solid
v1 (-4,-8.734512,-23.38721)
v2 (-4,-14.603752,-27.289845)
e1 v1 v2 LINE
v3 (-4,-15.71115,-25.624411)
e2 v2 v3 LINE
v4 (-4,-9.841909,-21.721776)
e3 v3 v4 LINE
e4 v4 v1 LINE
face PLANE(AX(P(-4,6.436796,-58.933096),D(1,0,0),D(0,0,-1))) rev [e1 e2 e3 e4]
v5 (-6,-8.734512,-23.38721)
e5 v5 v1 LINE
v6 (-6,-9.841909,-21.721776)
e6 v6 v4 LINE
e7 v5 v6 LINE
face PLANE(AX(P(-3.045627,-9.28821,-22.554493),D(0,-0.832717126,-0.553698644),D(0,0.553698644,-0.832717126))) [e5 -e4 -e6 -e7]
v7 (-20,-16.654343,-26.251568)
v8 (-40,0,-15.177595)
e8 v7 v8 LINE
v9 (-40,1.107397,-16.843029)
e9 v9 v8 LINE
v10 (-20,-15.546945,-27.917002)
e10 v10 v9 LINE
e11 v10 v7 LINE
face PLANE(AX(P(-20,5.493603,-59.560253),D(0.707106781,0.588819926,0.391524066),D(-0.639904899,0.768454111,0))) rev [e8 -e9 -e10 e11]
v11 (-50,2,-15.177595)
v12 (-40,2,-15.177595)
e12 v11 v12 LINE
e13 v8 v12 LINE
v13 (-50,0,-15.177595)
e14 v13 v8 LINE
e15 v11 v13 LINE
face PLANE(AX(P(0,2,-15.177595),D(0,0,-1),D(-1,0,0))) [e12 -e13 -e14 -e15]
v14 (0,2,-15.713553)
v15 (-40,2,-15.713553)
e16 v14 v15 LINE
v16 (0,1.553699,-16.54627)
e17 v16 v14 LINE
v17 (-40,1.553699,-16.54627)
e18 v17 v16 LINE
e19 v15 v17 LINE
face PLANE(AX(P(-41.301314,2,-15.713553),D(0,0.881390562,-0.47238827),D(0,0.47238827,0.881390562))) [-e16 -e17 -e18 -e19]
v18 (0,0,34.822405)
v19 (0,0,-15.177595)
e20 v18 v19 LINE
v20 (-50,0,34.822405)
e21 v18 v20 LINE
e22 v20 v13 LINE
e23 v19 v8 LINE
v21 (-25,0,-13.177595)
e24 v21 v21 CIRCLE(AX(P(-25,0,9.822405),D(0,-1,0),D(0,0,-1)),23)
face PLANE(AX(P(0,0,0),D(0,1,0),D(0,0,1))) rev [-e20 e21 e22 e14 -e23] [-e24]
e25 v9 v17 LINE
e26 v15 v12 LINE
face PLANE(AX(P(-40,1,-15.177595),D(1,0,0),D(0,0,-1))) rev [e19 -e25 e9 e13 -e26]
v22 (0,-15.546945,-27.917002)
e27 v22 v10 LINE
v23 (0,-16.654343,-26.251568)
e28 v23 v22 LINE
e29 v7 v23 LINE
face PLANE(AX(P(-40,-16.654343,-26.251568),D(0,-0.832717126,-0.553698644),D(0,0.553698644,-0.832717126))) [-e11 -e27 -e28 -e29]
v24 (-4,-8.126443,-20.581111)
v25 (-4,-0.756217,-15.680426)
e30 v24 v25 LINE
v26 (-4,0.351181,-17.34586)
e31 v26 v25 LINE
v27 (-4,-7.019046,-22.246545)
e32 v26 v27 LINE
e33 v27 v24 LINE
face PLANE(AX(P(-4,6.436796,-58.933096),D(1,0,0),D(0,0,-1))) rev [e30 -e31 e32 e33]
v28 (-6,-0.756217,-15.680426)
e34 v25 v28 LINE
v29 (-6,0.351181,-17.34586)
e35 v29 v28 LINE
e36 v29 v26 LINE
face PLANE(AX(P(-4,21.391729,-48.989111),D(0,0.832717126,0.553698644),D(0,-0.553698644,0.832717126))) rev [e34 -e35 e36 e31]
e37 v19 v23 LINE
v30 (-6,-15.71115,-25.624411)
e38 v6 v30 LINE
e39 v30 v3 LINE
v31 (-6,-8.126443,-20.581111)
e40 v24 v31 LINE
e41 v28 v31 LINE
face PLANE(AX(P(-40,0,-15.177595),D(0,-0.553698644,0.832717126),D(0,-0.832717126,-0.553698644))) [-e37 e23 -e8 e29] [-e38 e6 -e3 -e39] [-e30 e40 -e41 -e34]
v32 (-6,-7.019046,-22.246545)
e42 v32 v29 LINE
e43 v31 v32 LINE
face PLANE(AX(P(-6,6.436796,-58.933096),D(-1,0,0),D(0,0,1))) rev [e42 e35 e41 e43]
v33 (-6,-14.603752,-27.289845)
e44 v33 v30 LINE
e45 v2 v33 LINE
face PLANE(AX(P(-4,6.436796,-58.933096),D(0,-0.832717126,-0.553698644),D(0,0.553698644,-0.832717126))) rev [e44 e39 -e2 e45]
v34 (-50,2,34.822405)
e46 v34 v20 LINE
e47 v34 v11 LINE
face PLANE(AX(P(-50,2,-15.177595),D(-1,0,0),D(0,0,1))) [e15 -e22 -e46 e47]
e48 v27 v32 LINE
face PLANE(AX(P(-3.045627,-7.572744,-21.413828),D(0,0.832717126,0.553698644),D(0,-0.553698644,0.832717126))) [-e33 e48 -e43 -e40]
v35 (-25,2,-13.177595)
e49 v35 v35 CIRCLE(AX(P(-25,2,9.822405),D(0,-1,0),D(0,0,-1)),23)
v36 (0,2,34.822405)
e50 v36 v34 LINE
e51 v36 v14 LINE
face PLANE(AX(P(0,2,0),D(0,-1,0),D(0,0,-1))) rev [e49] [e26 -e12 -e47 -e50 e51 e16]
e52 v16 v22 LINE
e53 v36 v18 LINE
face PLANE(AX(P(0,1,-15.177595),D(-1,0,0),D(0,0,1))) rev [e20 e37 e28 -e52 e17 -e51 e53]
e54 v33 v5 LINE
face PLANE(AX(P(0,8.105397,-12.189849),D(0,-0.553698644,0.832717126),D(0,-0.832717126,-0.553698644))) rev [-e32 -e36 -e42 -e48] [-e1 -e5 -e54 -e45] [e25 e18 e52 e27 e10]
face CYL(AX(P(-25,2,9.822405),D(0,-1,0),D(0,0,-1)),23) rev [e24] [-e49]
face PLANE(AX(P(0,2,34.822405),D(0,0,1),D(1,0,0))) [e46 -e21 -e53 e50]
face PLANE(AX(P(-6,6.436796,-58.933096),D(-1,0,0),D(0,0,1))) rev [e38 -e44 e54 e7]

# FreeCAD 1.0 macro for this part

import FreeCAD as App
import Part
import Sketcher
Q = App.Units.Quantity


def add_polygon(sketch, points):
    """Adds a closed chain of lines whose ends are joined by coincident constraints."""
    first, n = sketch.GeometryCount, len(points)
    for a, b in zip(points, points[1:] + points[:1]):
        sketch.addGeometry(Part.LineSegment(App.Vector(*a, 0), App.Vector(*b, 0)), False)
    for i in range(n):
        sketch.addConstraint(Sketcher.Constraint("Coincident", first + i, 2, first + (i + 1) % n, 1))

doc = App.newDocument("Part")
body = doc.addObject("PartDesign::Body", "Body")

sketch1 = body.newObject("Sketcher::SketchObject", "Sketch")
sketch1.AttachmentSupport = (doc.getObject("XZ_Plane"), [""])
sketch1.MapMode = "FlatFace"
add_polygon(sketch1, [(-40, -15), (-40, 25), (0, 25), (0, -15)])
sketch1.addGeometry(Part.Circle(App.Vector(-20, 5, 0), App.Vector(0, 0, 1), 19), False)
sketch1.addConstraint(Sketcher.Constraint("Vertical", 0))
sketch1.addConstraint(Sketcher.Constraint("Horizontal", 1))
sketch1.addConstraint(Sketcher.Constraint("Vertical", 2))
sketch1.addConstraint(Sketcher.Constraint("Horizontal", 3))
sketch1.addConstraint(Sketcher.Constraint("PointOnObject", 1, 2, -2))
sketch1.addConstraint(Sketcher.Constraint("Equal", 3, 0))
sketch1.addConstraint(Sketcher.Constraint("Diameter", 4, Q("38 mm")))
sketch1.addConstraint(Sketcher.Constraint("DistanceX", 1, 1, 1, 2, Q("40 mm")))
sketch1.addConstraint(Sketcher.Constraint("DistanceX", 4, 3, -1, 1, Q("20 mm")))
sketch1.addConstraint(Sketcher.Constraint("DistanceY", 4, 3, 0, 2, Q("20 mm")))
sketch1.addConstraint(Sketcher.Constraint("DistanceY", -1, 1, 4, 3, Q("4.822405 mm")))
pad1 = body.newObject("PartDesign::Pad", "Pad")
pad1.Profile = sketch1
pad1.Length = 1
pad1.Reversed = True

sketch2 = body.newObject("Sketcher::SketchObject", "Sketch001")
sketch2.AttachmentSupport = (doc.getObject("YZ_Plane"), [""])
sketch2.MapMode = "FlatFace"
add_polygon(sketch2, [(0, -15.2), (-16.7, -26.3), (-16.1, -27.1), (1, -15.7), (1, -15.2)])
sketch2.addConstraint(Sketcher.Constraint("Vertical", 3))
sketch2.addConstraint(Sketcher.Constraint("Horizontal", 4))
sketch2.addConstraint(Sketcher.Constraint("PointOnObject", 4, 2, -2))
sketch2.addConstraint(Sketcher.Constraint("Perpendicular", 0, 1))
sketch2.addConstraint(Sketcher.Constraint("Perpendicular", 1, 2))
sketch2.addConstraint(Sketcher.Constraint("DistanceX", 4, 2, 4, 1, Q("1 mm")))
sketch2.addConstraint(Sketcher.Constraint("Distance", 0, Q("20 mm")))
sketch2.addConstraint(Sketcher.Constraint("Distance", 1, Q("1 mm")))
sketch2.addConstraint(Sketcher.Constraint("DistanceX", 0, 2, 1, 2, Q("0.553699 mm")))
sketch2.addConstraint(Sketcher.Constraint("DistanceY", 0, 2, -1, 1, Q("26.251568 mm")))
pad2 = body.newObject("PartDesign::Pad", "Pad001")
pad2.Profile = sketch2
pad2.Length = 40
pad2.Reversed = True

sketch3 = body.newObject("Sketcher::SketchObject", "Sketch002")
sketch3.Placement = App.Placement(App.Vector(0, 6.998, -10.524415), App.Rotation(App.Vector(1, 0, 0), App.Vector(0, 0.832717126, 0.553698644), App.Vector(0, -0.553698644, 0.832717126), "ZXY"))
add_polygon(sketch3, [(-20, -28), (-40, -8), (-40, -28)])
sketch3.addConstraint(Sketcher.Constraint("Vertical", 1))
sketch3.addConstraint(Sketcher.Constraint("Horizontal", 2))
sketch3.addConstraint(Sketcher.Constraint("Equal", 2, 1))
sketch3.addConstraint(Sketcher.Constraint("DistanceX", 2, 1, 2, 2, Q("20 mm")))
sketch3.addConstraint(Sketcher.Constraint("DistanceX", 0, 2, -1, 1, Q("40 mm")))
sketch3.addConstraint(Sketcher.Constraint("DistanceY", 0, 2, -1, 1, Q("8.403814 mm")))
pocket1 = body.newObject("PartDesign::Pocket", "Pocket")
pocket1.Profile = sketch3
pocket1.Length = 40

sketch4 = body.newObject("Sketcher::SketchObject", "Sketch003")
sketch4.Placement = App.Placement(App.Vector(0, 6.998, -10.524415), App.Rotation(App.Vector(1, 0, 0), App.Vector(0, 0.832717126, 0.553698644), App.Vector(0, -0.553698644, 0.832717126), "ZXY"))
add_polygon(sketch4, [(-6, -9.3), (-6, -27.3), (-4, -27.3), (-4, -9.3)])
sketch4.addConstraint(Sketcher.Constraint("Vertical", 0))
sketch4.addConstraint(Sketcher.Constraint("Horizontal", 1))
sketch4.addConstraint(Sketcher.Constraint("Vertical", 2))
sketch4.addConstraint(Sketcher.Constraint("Horizontal", 3))
sketch4.addConstraint(Sketcher.Constraint("DistanceX", 1, 1, 1, 2, Q("2 mm")))
sketch4.addConstraint(Sketcher.Constraint("DistanceX", 0, 2, -1, 1, Q("6 mm")))
sketch4.addConstraint(Sketcher.Constraint("DistanceY", 0, 2, 0, 1, Q("17.9592 mm")))
sketch4.addConstraint(Sketcher.Constraint("DistanceY", 0, 2, -1, 1, Q("27.271145 mm")))
pocket2 = body.newObject("PartDesign::Pocket", "Pocket001")
pocket2.Profile = sketch4
pocket2.Length = 40

sketch5 = body.newObject("Sketcher::SketchObject", "Sketch004")
sketch5.Placement = App.Placement(App.Vector(0, 6.998, -10.524415), App.Rotation(App.Vector(1, 0, 0), App.Vector(0, 0.832717126, 0.553698644), App.Vector(0, -0.553698644, 0.832717126), "ZXY"))
add_polygon(sketch5, [(-7.3, -18.2), (-7.3, -20.2), (-3, -20.2), (-3, -18.2)])
sketch5.addConstraint(Sketcher.Constraint("Vertical", 0))
sketch5.addConstraint(Sketcher.Constraint("Horizontal", 1))
sketch5.addConstraint(Sketcher.Constraint("Vertical", 2))
sketch5.addConstraint(Sketcher.Constraint("Horizontal", 3))
sketch5.addConstraint(Sketcher.Constraint("DistanceX", 1, 1, 1, 2, Q("4.29129 mm")))
sketch5.addConstraint(Sketcher.Constraint("DistanceY", 0, 2, 0, 1, Q("2.060083 mm")))
sketch5.addConstraint(Sketcher.Constraint("DistanceY", 2, 2, -1, 1, Q("18.162762 mm")))
sketch5.addConstraint(Sketcher.Constraint("DistanceX", 0, 2, -1, 1, Q("7.336917 mm")))
pad3 = body.newObject("PartDesign::Pad", "Pad002")
pad3.Profile = sketch5
pad3.Length = 1
pad3.Reversed = True

sketch6 = body.newObject("Sketcher::SketchObject", "Sketch005")
sketch6.AttachmentSupport = (doc.getObject("XZ_Plane"), [""])
sketch6.MapMode = "FlatFace"
sketch6.AttachmentOffset = App.Placement(App.Vector(0, 0, -1), App.Rotation())
add_polygon(sketch6, [(-40, -16), (-40, 25), (0, 25), (0, -16)])
sketch6.addGeometry(Part.Circle(App.Vector(-20, 5, 0), App.Vector(0, 0, 1), 19), False)
sketch6.addConstraint(Sketcher.Constraint("Vertical", 0))
sketch6.addConstraint(Sketcher.Constraint("Horizontal", 1))
sketch6.addConstraint(Sketcher.Constraint("Vertical", 2))
sketch6.addConstraint(Sketcher.Constraint("Horizontal", 3))
sketch6.addConstraint(Sketcher.Constraint("PointOnObject", 1, 2, -2))
sketch6.addConstraint(Sketcher.Constraint("Diameter", 4, Q("38 mm")))
sketch6.addConstraint(Sketcher.Constraint("DistanceX", 1, 1, 1, 2, Q("40 mm")))
sketch6.addConstraint(Sketcher.Constraint("DistanceX", 4, 3, -1, 1, Q("20 mm")))
sketch6.addConstraint(Sketcher.Constraint("DistanceY", 4, 3, 0, 2, Q("20 mm")))
sketch6.addConstraint(Sketcher.Constraint("DistanceY", 0, 1, 0, 2, Q("40.535958 mm")))
sketch6.addConstraint(Sketcher.Constraint("DistanceY", -1, 1, 4, 3, Q("4.822405 mm")))
pad4 = body.newObject("PartDesign::Pad", "Pad003")
pad4.Profile = sketch6
pad4.Length = 1
pad4.Reversed = True

sketch7 = body.newObject("Sketcher::SketchObject", "Sketch006")
sketch7.Placement = App.Placement(App.Vector(0, 7.551698, -11.357132), App.Rotation(App.Vector(-1, 0, 0), App.Vector(0, 0.832717126, 0.553698644), App.Vector(0, 0.553698644, -0.832717126), "ZXY"))
add_polygon(sketch7, [(40, -8.4), (40, -7.9), (0, -7.9), (0, -28.4), (20, -28.4)])
add_polygon(sketch7, [(4, -27.3), (4, -20.2), (6, -20.2), (6, -27.3)])
add_polygon(sketch7, [(4, -18.2), (4, -9.3), (6, -9.3), (6, -18.2)])
sketch7.addConstraint(Sketcher.Constraint("Vertical", 0))
sketch7.addConstraint(Sketcher.Constraint("Horizontal", 1))
sketch7.addConstraint(Sketcher.Constraint("Vertical", 2))
sketch7.addConstraint(Sketcher.Constraint("Horizontal", 3))
sketch7.addConstraint(Sketcher.Constraint("Vertical", 5))
sketch7.addConstraint(Sketcher.Constraint("Horizontal", 6))
sketch7.addConstraint(Sketcher.Constraint("Vertical", 7))
sketch7.addConstraint(Sketcher.Constraint("Horizontal", 8))
sketch7.addConstraint(Sketcher.Constraint("Vertical", 9))
sketch7.addConstraint(Sketcher.Constraint("Horizontal", 10))
sketch7.addConstraint(Sketcher.Constraint("Vertical", 11))
sketch7.addConstraint(Sketcher.Constraint("Horizontal", 12))
sketch7.addConstraint(Sketcher.Constraint("PointOnObject", 1, 2, -2))
sketch7.addConstraint(Sketcher.Constraint("Vertical", 8, 2, 9, 2))
sketch7.addConstraint(Sketcher.Constraint("Vertical", 7, 2, 10, 2))
sketch7.addConstraint(Sketcher.Constraint("DistanceX", 1, 2, 1, 1, Q("40 mm")))
sketch7.addConstraint(Sketcher.Constraint("DistanceX", 3, 1, 3, 2, Q("20 mm")))
sketch7.addConstraint(Sketcher.Constraint("DistanceX", 6, 1, 6, 2, Q("2 mm")))
sketch7.addConstraint(Sketcher.Constraint("Angle", 4, Q("45 deg")))
sketch7.addConstraint(Sketcher.Constraint("DistanceX", -1, 1, 5, 2, Q("4 mm")))
sketch7.addConstraint(Sketcher.Constraint("DistanceY", 5, 1, 5, 2, Q("7.048301 mm")))
sketch7.addConstraint(Sketcher.Constraint("DistanceY", 5, 2, 9, 2, Q("10.910899 mm")))
sketch7.addConstraint(Sketcher.Constraint("DistanceY", 0, 1, 0, 2, Q("0.535958 mm")))
sketch7.addConstraint(Sketcher.Constraint("DistanceY", 9, 1, 9, 2, Q("8.850816 mm")))
sketch7.addConstraint(Sketcher.Constraint("DistanceY", 11, 2, -1, 1, Q("18.162762 mm")))
sketch7.addConstraint(Sketcher.Constraint("DistanceY", 2, 2, 5, 2, Q("8.18097 mm")))
pad5 = body.newObject("PartDesign::Pad", "Pad004")
pad5.Profile = sketch7
pad5.Length = 1

sketch8 = body.newObject("Sketcher::SketchObject", "Sketch007")
sketch8.AttachmentSupport = (doc.getObject("YZ_Plane"), [""])
sketch8.MapMode = "FlatFace"
add_polygon(sketch8, [(1.6, -16.5), (2, -15.7), (1, -15.7)])
sketch8.addConstraint(Sketcher.Constraint("Horizontal", 1))
sketch8.addConstraint(Sketcher.Constraint("DistanceX", 1, 2, 1, 1, Q("1 mm")))
sketch8.addConstraint(Sketcher.Constraint("Distance", 2, Q("1 mm")))
sketch8.addConstraint(Sketcher.Constraint("DistanceX", -1, 1, 0, 2, Q("2 mm")))
sketch8.addConstraint(Sketcher.Constraint("DistanceX", -1, 1, 2, 2, Q("1.553699 mm")))
sketch8.addConstraint(Sketcher.Constraint("DistanceY", 2, 2, -1, 1, Q("16.54627 mm")))
pad6 = body.newObject("PartDesign::Pad", "Pad005")
pad6.Profile = sketch8
pad6.Length = 40
pad6.Reversed = True

sketch9 = body.newObject("Sketcher::SketchObject", "Sketch008")
sketch9.AttachmentSupport = (doc.getObject("XZ_Plane"), [""])
sketch9.MapMode = "FlatFace"
add_polygon(sketch9, [(0, -15), (0, 35), (-50, 35), (-50, -15)])
sketch9.addConstraint(Sketcher.Constraint("Vertical", 0))
sketch9.addConstraint(Sketcher.Constraint("Horizontal", 1))
sketch9.addConstraint(Sketcher.Constraint("Vertical", 2))
sketch9.addConstraint(Sketcher.Constraint("Horizontal", 3))
sketch9.addConstraint(Sketcher.Constraint("PointOnObject", 0, 2, -2))
sketch9.addConstraint(Sketcher.Constraint("Equal", 3, 0))
sketch9.addConstraint(Sketcher.Constraint("DistanceX", 1, 2, 1, 1, Q("50 mm")))
sketch9.addConstraint(Sketcher.Constraint("DistanceY", -1, 1, 0, 2, Q("34.822405 mm")))
pad7 = body.newObject("PartDesign::Pad", "Pad006")
pad7.Profile = sketch9
pad7.Length = 2
pad7.Reversed = True

sketch10 = body.newObject("Sketcher::SketchObject", "Sketch009")
sketch10.AttachmentSupport = (doc.getObject("XZ_Plane"), [""])
sketch10.MapMode = "FlatFace"
sketch10.addGeometry(Part.Circle(App.Vector(-25, 10, 0), App.Vector(0, 0, 1), 23), False)
sketch10.addConstraint(Sketcher.Constraint("Diameter", 0, Q("46 mm")))
sketch10.addConstraint(Sketcher.Constraint("DistanceX", 0, 3, -1, 1, Q("25 mm")))
sketch10.addConstraint(Sketcher.Constraint("DistanceY", -1, 1, 0, 3, Q("9.822405 mm")))
pocket3 = body.newObject("PartDesign::Pocket", "Pocket002")
pocket3.Profile = sketch10
pocket3.Length = 2

doc.recompute()
